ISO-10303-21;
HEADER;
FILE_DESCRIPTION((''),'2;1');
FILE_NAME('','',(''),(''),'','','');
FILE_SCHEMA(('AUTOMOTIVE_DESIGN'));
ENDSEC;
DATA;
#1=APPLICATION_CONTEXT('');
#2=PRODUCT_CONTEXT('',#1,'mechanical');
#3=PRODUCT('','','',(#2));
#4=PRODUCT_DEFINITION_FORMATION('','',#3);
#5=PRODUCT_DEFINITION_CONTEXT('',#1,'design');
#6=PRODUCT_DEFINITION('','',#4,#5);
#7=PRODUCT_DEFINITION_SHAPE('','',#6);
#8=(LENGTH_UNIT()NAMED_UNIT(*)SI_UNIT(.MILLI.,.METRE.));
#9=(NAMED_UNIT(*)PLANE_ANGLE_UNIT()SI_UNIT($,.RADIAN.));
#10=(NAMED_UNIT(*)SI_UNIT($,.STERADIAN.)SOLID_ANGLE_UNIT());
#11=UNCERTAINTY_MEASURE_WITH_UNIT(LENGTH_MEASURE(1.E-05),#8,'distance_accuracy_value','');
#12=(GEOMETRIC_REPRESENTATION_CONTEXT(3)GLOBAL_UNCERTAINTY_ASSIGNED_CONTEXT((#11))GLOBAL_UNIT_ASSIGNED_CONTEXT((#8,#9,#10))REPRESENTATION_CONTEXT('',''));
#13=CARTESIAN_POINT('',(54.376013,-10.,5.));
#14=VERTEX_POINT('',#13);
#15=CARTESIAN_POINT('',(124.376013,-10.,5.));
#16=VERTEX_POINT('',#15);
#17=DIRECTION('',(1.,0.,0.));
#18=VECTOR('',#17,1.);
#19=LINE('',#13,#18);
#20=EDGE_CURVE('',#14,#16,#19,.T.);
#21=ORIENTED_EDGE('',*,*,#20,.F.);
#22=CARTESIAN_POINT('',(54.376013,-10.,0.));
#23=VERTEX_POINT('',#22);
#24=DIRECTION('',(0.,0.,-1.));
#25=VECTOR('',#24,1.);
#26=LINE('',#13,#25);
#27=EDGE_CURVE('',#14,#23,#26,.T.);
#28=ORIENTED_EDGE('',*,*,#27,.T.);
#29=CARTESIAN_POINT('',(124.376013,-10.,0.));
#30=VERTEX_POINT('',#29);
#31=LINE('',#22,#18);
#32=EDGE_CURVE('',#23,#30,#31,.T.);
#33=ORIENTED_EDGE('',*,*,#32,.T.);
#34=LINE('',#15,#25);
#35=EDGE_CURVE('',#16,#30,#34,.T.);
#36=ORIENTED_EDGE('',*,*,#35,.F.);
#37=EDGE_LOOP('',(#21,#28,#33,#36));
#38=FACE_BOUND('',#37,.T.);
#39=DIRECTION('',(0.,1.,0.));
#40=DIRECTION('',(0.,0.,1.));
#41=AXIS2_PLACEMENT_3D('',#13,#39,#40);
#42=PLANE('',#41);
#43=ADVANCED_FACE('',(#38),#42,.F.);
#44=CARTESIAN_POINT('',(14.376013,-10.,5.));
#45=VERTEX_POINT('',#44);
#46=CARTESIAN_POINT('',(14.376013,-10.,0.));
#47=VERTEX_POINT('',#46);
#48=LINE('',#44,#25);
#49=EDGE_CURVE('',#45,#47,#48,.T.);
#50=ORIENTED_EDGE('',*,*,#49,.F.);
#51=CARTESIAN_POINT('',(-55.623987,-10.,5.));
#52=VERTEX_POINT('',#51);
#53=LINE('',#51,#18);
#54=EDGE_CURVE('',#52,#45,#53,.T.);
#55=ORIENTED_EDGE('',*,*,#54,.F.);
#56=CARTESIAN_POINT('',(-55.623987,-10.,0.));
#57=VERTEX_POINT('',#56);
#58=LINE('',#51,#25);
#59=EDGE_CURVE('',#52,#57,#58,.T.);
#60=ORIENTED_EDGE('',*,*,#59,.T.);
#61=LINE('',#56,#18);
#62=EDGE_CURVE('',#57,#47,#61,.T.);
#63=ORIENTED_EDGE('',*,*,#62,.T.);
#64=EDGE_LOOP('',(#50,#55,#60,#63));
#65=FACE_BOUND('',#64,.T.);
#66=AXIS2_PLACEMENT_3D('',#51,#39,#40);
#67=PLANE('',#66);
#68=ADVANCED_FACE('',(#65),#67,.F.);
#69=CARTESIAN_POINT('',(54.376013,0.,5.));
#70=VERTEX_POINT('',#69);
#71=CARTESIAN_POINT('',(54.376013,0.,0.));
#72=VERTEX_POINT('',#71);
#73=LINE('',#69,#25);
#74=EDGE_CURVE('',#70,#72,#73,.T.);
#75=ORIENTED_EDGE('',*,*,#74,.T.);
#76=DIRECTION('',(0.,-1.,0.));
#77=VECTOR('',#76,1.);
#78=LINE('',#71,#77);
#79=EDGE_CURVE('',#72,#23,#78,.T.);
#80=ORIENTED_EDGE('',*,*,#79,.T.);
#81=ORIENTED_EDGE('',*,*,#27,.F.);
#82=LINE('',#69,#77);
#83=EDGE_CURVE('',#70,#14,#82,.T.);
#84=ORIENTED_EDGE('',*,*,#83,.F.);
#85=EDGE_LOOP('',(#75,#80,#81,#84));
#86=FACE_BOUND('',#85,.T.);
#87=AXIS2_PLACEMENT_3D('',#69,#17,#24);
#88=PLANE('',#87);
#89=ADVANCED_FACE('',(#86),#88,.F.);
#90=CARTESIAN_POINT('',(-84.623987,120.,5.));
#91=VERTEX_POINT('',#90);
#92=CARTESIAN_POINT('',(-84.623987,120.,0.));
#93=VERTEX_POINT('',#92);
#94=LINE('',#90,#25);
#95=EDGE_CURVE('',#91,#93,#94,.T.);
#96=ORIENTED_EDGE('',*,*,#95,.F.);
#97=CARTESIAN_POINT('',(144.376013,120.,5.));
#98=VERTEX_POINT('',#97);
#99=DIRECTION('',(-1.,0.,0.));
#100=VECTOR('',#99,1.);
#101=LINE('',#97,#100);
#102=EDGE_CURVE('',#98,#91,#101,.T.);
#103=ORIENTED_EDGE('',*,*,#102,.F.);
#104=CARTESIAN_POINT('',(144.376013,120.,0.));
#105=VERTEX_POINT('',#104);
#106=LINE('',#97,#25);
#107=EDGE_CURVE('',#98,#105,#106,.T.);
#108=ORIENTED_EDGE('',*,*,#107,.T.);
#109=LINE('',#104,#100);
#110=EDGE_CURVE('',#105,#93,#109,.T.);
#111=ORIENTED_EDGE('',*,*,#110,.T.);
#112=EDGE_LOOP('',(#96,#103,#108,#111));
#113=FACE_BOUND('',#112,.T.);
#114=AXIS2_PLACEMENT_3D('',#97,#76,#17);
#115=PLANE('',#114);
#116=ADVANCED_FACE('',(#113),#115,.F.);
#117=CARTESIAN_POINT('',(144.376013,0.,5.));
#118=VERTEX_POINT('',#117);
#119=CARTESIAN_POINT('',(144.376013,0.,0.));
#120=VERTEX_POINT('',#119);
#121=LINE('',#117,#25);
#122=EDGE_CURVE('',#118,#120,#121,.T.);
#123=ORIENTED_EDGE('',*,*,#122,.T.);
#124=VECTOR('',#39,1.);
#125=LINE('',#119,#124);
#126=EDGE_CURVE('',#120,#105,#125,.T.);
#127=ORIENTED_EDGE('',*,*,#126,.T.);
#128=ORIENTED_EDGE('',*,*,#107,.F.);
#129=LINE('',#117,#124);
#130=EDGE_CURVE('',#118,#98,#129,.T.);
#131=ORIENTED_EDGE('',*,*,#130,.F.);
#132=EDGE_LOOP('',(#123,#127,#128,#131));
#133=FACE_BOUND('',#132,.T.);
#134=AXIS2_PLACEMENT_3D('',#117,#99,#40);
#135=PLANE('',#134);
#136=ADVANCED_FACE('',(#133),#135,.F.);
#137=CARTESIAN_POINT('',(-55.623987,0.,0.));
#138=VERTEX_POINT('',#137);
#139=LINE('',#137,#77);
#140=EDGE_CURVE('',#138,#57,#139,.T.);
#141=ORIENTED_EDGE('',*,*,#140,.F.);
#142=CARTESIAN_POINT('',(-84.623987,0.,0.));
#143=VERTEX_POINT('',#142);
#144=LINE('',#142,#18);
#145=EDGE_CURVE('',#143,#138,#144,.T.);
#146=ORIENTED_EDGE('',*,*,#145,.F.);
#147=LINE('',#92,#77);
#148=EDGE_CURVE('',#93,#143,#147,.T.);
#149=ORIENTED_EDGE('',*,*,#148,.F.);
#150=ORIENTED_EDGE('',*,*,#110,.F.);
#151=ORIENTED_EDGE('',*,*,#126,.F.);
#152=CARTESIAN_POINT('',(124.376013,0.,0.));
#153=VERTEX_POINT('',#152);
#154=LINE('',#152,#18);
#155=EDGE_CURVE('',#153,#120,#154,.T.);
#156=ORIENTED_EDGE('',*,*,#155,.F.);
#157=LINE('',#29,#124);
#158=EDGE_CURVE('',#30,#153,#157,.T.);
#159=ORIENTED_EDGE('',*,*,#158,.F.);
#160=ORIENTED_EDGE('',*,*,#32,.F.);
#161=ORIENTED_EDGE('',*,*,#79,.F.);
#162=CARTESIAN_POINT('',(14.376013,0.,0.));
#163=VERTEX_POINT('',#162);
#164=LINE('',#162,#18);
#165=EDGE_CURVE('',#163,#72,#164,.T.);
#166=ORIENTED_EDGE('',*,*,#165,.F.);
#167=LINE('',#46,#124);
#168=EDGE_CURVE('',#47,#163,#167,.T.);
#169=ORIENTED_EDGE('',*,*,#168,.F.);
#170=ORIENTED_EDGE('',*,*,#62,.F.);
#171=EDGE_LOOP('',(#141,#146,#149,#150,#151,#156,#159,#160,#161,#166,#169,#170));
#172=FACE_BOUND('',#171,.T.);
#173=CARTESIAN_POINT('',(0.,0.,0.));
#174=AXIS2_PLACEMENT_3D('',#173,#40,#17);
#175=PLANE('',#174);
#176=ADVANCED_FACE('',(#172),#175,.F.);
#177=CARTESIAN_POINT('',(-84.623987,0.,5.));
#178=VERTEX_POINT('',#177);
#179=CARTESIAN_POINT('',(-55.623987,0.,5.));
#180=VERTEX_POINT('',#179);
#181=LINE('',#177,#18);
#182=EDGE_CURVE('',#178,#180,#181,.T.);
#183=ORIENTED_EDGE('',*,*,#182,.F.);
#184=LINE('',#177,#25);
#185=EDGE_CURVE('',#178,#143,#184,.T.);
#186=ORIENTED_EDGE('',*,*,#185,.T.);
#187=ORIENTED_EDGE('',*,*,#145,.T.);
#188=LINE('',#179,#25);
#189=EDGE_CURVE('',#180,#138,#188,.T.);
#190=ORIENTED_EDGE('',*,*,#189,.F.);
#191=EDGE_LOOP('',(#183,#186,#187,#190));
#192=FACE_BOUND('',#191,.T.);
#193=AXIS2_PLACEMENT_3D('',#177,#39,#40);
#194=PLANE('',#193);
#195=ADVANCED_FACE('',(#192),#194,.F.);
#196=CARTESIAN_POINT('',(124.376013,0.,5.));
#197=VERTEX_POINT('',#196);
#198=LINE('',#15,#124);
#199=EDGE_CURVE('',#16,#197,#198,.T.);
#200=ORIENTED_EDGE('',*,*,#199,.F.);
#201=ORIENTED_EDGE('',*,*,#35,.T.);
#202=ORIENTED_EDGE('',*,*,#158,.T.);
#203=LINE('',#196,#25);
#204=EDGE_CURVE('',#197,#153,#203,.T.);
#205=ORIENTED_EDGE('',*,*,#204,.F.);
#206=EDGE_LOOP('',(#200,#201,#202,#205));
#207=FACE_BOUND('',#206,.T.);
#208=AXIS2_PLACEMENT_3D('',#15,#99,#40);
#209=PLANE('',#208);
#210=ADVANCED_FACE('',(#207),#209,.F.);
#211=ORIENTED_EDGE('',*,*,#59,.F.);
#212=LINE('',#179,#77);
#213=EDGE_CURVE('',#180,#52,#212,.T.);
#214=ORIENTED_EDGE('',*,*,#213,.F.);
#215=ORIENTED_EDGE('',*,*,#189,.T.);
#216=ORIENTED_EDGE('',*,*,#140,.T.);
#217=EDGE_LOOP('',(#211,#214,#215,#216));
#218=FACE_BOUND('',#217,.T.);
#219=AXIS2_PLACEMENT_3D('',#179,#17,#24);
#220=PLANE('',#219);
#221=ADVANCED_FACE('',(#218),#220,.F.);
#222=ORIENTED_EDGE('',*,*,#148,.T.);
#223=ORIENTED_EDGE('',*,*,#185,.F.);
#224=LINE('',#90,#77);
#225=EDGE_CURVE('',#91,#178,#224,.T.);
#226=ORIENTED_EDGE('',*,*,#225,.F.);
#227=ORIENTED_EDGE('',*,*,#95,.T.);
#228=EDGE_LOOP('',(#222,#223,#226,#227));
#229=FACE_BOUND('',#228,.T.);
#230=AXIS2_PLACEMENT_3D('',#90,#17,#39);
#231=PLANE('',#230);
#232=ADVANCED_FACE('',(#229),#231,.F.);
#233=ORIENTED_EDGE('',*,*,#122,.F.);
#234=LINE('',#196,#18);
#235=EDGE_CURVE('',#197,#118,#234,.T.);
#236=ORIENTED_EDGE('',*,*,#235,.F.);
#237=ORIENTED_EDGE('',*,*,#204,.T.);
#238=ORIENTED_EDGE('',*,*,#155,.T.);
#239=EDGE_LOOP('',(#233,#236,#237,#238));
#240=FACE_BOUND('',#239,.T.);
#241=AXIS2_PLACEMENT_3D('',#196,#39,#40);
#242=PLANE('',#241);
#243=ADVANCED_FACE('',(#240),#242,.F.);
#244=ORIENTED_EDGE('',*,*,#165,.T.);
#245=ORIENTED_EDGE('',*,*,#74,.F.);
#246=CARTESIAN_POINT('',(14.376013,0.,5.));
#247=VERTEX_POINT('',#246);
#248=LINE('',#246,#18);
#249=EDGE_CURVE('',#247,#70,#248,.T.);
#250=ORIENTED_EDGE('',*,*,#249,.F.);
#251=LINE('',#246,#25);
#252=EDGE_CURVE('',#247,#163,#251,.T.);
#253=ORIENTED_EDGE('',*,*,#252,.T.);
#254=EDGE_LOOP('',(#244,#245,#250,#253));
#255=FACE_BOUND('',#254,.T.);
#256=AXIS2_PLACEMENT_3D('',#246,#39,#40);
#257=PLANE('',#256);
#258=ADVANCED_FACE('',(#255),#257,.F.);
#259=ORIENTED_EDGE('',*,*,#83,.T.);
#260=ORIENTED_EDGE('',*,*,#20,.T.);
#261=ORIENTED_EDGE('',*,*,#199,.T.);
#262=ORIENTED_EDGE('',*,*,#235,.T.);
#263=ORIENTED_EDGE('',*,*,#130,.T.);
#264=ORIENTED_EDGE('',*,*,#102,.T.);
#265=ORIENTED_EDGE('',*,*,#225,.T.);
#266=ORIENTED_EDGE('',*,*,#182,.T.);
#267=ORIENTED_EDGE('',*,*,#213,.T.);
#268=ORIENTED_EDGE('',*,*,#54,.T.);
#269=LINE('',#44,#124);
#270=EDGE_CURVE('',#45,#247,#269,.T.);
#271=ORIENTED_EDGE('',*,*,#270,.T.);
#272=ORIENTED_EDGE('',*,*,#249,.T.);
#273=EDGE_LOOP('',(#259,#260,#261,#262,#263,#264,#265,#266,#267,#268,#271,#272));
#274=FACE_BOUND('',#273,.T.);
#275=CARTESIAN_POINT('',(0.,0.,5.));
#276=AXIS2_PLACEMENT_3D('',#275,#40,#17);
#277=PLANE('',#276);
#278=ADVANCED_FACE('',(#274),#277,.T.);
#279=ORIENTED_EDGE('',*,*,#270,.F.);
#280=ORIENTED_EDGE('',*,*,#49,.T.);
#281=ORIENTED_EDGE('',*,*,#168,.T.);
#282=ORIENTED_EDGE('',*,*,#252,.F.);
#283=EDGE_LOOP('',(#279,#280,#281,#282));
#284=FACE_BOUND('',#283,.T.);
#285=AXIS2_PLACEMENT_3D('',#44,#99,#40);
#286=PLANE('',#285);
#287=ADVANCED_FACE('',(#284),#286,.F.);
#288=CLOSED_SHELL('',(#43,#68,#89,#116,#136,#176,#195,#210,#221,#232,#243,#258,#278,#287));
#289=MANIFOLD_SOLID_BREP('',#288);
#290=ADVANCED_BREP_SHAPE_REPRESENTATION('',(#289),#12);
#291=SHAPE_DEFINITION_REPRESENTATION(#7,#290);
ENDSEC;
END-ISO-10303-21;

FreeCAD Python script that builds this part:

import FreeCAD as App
import Part
import Sketcher
from FreeCAD import Vector
Q = App.Units.Quantity

doc = App.newDocument("Part")
body = doc.addObject("PartDesign::Body", "Body")

# Sketch on XY plane
sketch1 = body.newObject("Sketcher::SketchObject", "Sketch")
sketch1.AttachmentSupport = (doc.getObject("XY_Plane"), [""])
sketch1.MapMode = "FlatFace"
sketch1.addGeometry(Part.LineSegment(Vector(-85, 0, 0), Vector(-56, 0, 0)), False)
sketch1.addGeometry(Part.LineSegment(Vector(-56, 0, 0), Vector(-56, -10, 0)), False)
sketch1.addGeometry(Part.LineSegment(Vector(-56, -10, 0), Vector(14, -10, 0)), False)
sketch1.addGeometry(Part.LineSegment(Vector(14, -10, 0), Vector(14, 0, 0)), False)
sketch1.addGeometry(Part.LineSegment(Vector(14, 0, 0), Vector(54, 0, 0)), False)
sketch1.addGeometry(Part.LineSegment(Vector(54, 0, 0), Vector(54, -10, 0)), False)
sketch1.addGeometry(Part.LineSegment(Vector(54, -10, 0), Vector(124, -10, 0)), False)
sketch1.addGeometry(Part.LineSegment(Vector(124, -10, 0), Vector(124, 0, 0)), False)
sketch1.addGeometry(Part.LineSegment(Vector(124, 0, 0), Vector(144, 0, 0)), False)
sketch1.addGeometry(Part.LineSegment(Vector(144, 0, 0), Vector(144, 120, 0)), False)
sketch1.addGeometry(Part.LineSegment(Vector(144, 120, 0), Vector(-85, 120, 0)), False)
sketch1.addGeometry(Part.LineSegment(Vector(-85, 120, 0), Vector(-85, 0, 0)), False)
sketch1.addConstraint(Sketcher.Constraint("Coincident", 0, 2, 1, 1))
sketch1.addConstraint(Sketcher.Constraint("Coincident", 1, 2, 2, 1))
sketch1.addConstraint(Sketcher.Constraint("Coincident", 2, 2, 3, 1))
sketch1.addConstraint(Sketcher.Constraint("Coincident", 3, 2, 4, 1))
sketch1.addConstraint(Sketcher.Constraint("Coincident", 4, 2, 5, 1))
sketch1.addConstraint(Sketcher.Constraint("Coincident", 5, 2, 6, 1))
sketch1.addConstraint(Sketcher.Constraint("Coincident", 6, 2, 7, 1))
sketch1.addConstraint(Sketcher.Constraint("Coincident", 7, 2, 8, 1))
sketch1.addConstraint(Sketcher.Constraint("Coincident", 8, 2, 9, 1))
sketch1.addConstraint(Sketcher.Constraint("Coincident", 9, 2, 10, 1))
sketch1.addConstraint(Sketcher.Constraint("Coincident", 10, 2, 11, 1))
sketch1.addConstraint(Sketcher.Constraint("Coincident", 11, 2, 0, 1))
sketch1.addConstraint(Sketcher.Constraint("Horizontal", 0))
sketch1.addConstraint(Sketcher.Constraint("Vertical", 1))
sketch1.addConstraint(Sketcher.Constraint("Horizontal", 2))
sketch1.addConstraint(Sketcher.Constraint("Vertical", 3))
sketch1.addConstraint(Sketcher.Constraint("Horizontal", 4))
sketch1.addConstraint(Sketcher.Constraint("Vertical", 5))
sketch1.addConstraint(Sketcher.Constraint("Horizontal", 6))
sketch1.addConstraint(Sketcher.Constraint("Vertical", 7))
sketch1.addConstraint(Sketcher.Constraint("Horizontal", 8))
sketch1.addConstraint(Sketcher.Constraint("Vertical", 9))
sketch1.addConstraint(Sketcher.Constraint("Horizontal", 10))
sketch1.addConstraint(Sketcher.Constraint("Vertical", 11))
sketch1.addConstraint(Sketcher.Constraint("PointOnObject", 0, 2, -1))
sketch1.addConstraint(Sketcher.Constraint("PointOnObject", 3, 2, -1))
sketch1.addConstraint(Sketcher.Constraint("PointOnObject", 7, 2, -1))
sketch1.addConstraint(Sketcher.Constraint("Horizontal", 2, 2, 5, 2))
sketch1.addConstraint(Sketcher.Constraint("Equal", 2, 6))
sketch1.addConstraint(Sketcher.Constraint("DistanceX", 0, 1, 0, 2, Q("29 mm")))
sketch1.addConstraint(Sketcher.Constraint("DistanceX", 2, 1, 2, 2, Q("70 mm")))
sketch1.addConstraint(Sketcher.Constraint("DistanceX", 4, 1, 4, 2, Q("40 mm")))
sketch1.addConstraint(Sketcher.Constraint("DistanceX", 8, 1, 8, 2, Q("20 mm")))
sketch1.addConstraint(Sketcher.Constraint("DistanceY", 1, 2, 1, 1, Q("10 mm")))
sketch1.addConstraint(Sketcher.Constraint("DistanceY", 9, 1, 9, 2, Q("120 mm")))
sketch1.addConstraint(Sketcher.Constraint("DistanceX", 0, 2, -1, 1, Q("55.623987 mm")))
pad1 = body.newObject("PartDesign::Pad", "Pad")
pad1.Profile = sketch1
pad1.Length = 5

doc.recompute()
